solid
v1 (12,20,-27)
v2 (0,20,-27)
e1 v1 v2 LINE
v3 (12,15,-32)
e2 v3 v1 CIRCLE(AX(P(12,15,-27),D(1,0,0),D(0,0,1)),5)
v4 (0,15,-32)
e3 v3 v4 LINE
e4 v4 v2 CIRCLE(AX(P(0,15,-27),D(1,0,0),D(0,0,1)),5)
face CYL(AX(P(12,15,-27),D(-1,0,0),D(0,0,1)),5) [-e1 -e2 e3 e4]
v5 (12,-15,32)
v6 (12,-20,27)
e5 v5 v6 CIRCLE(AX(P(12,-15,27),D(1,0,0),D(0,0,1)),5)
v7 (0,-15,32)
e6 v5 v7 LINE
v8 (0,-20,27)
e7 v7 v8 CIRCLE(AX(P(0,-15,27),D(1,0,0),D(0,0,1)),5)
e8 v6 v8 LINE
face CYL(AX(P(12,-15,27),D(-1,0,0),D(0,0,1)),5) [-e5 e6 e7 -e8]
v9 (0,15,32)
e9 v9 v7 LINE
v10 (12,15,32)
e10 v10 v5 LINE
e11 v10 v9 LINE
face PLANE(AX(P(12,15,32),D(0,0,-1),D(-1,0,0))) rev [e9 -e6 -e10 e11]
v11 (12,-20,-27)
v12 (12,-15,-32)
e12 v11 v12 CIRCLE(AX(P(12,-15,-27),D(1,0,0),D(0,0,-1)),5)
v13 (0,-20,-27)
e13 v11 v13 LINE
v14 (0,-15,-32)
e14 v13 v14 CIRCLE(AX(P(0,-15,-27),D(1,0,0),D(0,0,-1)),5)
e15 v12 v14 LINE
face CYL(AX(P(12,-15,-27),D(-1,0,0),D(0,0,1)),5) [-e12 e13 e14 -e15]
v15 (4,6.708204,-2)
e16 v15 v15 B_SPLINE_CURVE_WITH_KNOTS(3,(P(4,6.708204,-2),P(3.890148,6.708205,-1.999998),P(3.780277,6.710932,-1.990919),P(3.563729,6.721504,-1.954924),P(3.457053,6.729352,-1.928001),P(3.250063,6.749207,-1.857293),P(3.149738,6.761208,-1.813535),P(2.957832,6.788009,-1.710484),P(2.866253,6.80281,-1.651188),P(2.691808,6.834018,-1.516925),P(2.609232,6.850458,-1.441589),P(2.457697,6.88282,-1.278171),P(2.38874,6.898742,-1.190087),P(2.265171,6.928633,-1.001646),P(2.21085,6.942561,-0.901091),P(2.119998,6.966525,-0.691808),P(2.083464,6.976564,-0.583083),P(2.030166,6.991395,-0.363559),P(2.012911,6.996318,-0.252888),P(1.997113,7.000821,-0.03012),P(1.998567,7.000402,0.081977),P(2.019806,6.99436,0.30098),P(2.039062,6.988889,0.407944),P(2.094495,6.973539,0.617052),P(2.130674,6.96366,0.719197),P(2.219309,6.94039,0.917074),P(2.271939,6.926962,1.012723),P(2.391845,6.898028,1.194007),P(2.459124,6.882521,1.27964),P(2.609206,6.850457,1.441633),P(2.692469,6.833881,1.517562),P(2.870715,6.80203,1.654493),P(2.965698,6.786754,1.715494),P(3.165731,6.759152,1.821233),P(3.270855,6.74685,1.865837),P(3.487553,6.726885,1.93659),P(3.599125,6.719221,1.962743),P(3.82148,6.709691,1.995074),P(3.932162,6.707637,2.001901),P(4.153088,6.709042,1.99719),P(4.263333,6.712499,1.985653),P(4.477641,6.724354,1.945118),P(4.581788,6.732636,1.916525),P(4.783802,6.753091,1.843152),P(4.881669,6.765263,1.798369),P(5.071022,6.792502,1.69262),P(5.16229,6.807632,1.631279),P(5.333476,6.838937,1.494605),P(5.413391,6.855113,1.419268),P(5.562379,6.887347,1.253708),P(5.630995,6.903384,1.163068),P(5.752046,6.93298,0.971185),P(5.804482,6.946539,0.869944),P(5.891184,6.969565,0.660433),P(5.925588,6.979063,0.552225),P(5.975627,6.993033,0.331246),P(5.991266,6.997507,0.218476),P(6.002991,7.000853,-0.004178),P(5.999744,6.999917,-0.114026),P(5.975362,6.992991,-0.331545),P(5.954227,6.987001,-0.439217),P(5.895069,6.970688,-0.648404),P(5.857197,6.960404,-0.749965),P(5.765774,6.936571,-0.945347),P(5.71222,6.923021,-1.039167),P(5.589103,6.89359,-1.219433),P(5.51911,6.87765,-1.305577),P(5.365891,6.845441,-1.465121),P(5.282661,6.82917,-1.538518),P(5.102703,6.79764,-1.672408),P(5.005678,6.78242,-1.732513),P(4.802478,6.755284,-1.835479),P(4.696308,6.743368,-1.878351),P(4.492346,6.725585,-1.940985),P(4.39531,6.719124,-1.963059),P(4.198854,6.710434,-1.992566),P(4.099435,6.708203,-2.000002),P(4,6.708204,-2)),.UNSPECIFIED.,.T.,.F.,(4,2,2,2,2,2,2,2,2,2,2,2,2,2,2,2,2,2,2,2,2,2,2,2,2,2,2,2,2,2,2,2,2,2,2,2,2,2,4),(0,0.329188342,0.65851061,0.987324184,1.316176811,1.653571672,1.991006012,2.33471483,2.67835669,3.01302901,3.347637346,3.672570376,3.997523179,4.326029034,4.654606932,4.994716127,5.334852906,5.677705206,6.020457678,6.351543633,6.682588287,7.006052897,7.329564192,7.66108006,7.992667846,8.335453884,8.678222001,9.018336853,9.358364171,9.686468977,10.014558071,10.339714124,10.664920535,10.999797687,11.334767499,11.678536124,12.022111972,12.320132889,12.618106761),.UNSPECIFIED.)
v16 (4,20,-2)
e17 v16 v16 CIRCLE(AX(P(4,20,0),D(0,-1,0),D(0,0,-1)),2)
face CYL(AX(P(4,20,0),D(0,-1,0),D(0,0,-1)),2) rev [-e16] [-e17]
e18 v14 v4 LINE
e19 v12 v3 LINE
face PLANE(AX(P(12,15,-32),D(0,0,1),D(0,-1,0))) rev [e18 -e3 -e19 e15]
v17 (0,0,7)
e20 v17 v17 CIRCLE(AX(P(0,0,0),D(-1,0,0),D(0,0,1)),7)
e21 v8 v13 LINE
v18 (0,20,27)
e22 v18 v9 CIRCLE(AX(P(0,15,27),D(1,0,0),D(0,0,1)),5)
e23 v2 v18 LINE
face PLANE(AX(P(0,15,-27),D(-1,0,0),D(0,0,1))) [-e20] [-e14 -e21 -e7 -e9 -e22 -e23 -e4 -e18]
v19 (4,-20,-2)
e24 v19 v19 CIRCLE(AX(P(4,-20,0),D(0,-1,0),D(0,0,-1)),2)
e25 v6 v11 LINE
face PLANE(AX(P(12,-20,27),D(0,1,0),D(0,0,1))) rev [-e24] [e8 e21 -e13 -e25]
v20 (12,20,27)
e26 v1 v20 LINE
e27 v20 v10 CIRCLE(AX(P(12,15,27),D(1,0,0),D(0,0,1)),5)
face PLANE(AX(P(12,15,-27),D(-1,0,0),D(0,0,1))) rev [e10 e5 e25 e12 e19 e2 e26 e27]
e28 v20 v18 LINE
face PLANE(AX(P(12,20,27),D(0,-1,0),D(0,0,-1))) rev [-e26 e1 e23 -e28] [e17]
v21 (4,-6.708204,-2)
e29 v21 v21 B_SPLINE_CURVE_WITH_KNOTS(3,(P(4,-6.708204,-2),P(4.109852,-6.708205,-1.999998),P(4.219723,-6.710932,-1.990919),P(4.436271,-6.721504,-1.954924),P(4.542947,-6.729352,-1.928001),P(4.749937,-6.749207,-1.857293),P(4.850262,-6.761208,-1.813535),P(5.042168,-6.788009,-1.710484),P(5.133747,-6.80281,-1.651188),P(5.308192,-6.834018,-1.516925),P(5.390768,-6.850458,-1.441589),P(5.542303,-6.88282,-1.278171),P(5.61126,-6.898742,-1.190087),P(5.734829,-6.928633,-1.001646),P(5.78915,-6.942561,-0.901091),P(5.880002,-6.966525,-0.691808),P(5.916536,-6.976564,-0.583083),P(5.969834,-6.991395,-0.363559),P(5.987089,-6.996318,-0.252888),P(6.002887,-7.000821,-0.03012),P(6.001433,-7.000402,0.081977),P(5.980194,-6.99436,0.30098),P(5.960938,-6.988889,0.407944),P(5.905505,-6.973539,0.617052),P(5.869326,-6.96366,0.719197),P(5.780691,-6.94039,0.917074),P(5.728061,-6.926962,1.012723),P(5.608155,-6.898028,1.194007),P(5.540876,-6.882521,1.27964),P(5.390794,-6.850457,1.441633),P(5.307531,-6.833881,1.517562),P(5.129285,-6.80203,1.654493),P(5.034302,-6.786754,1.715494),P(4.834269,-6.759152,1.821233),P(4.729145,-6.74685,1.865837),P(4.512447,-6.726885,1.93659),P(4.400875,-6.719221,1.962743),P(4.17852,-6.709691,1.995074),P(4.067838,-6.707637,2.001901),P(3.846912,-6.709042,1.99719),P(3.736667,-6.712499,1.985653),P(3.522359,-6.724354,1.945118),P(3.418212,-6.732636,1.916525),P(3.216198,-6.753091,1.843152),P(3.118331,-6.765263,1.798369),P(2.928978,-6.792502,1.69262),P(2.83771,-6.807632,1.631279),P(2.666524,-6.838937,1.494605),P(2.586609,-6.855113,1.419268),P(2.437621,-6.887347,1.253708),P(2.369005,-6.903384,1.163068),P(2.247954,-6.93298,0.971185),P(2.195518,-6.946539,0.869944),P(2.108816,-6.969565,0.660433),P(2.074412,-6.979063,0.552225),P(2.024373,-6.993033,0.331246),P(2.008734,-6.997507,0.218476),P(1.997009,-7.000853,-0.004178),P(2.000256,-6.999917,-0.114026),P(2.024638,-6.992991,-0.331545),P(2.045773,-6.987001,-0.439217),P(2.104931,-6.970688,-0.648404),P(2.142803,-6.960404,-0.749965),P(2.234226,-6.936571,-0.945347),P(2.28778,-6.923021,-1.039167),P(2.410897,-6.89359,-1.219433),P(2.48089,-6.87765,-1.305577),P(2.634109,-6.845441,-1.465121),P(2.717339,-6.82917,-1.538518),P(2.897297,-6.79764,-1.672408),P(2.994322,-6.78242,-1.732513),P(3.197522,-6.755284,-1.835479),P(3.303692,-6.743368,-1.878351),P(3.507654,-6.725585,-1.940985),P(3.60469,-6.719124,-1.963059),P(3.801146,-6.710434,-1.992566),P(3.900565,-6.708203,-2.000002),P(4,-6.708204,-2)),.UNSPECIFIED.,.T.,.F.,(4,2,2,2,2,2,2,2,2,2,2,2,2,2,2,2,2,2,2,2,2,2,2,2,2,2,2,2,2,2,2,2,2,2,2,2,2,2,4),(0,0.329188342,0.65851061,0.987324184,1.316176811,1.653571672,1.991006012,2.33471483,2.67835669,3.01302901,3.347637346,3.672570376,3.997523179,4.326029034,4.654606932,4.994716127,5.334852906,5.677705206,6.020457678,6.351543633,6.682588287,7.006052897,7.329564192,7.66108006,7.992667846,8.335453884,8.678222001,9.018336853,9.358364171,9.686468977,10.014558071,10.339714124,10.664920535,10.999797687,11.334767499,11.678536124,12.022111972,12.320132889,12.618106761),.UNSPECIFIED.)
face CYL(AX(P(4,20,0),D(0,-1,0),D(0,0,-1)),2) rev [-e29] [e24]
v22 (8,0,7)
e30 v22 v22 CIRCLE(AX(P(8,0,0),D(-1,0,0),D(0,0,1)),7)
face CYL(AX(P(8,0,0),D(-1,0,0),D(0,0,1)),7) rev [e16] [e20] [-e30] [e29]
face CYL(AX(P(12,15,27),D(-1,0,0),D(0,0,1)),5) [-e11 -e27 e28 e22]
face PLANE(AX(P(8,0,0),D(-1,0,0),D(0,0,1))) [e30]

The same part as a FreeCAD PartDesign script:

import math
import FreeCAD as App
import Part
import Sketcher

doc = App.newDocument("Part")
body = doc.addObject("PartDesign::Body", "Body")

# Sketch on YZ plane
sketch1 = body.newObject("Sketcher::SketchObject", "Sketch")
sketch1.AttachmentSupport = (doc.getObject("YZ_Plane"), [""])
sketch1.MapMode = "FlatFace"
sketch1.addGeometry([
    Part.LineSegment(App.Vector(20, -27, 0), App.Vector(20, 27, 0)),  # 0
    Part.ArcOfCircle(Part.Circle(App.Vector(15, 27, 0), App.Vector(0, 0, 1), 5), math.radians(0), math.radians(90)),  # 1
    Part.LineSegment(App.Vector(15, 32, 0), App.Vector(-15, 32, 0)),  # 2
    Part.ArcOfCircle(Part.Circle(App.Vector(-15, 27, 0), App.Vector(0, 0, 1), 5), math.radians(90), math.radians(180)),  # 3
    Part.LineSegment(App.Vector(-20, 27, 0), App.Vector(-20, -27, 0)),  # 4
    Part.ArcOfCircle(Part.Circle(App.Vector(-15, -27, 0), App.Vector(0, 0, 1), 5), math.radians(180), math.radians(270)),  # 5
    Part.LineSegment(App.Vector(-15, -32, 0), App.Vector(15, -32, 0)),  # 6
    Part.ArcOfCircle(Part.Circle(App.Vector(15, -27, 0), App.Vector(0, 0, 1), 5), math.radians(-90), math.radians(0)),  # 7
], False)
sketch1.addConstraint([
    Sketcher.Constraint("Tangent", 0, 2, 1, 1),
    Sketcher.Constraint("Tangent", 1, 2, 2, 1),
    Sketcher.Constraint("Tangent", 2, 2, 3, 1),
    Sketcher.Constraint("Tangent", 3, 2, 4, 1),
    Sketcher.Constraint("Tangent", 4, 2, 5, 1),
    Sketcher.Constraint("Tangent", 5, 2, 6, 1),
    Sketcher.Constraint("Tangent", 6, 2, 7, 1),
    Sketcher.Constraint("Tangent", 7, 2, 0, 1),
    Sketcher.Constraint("Vertical", 0),
    Sketcher.Constraint("Horizontal", 2),
    Sketcher.Constraint("Vertical", 4),
    Sketcher.Constraint("Horizontal", 6),
    Sketcher.Constraint("Equal", 1, 3),
    Sketcher.Constraint("Equal", 3, 5),
    Sketcher.Constraint("Equal", 5, 7),
    Sketcher.Constraint("Symmetric", 1, 3, 5, 3, -1, 1),
    Sketcher.Constraint("Radius", 1, 5.0),
    Sketcher.Constraint("DistanceX", 2, 2, 2, 1, 30.0),
    Sketcher.Constraint("DistanceY", 0, 1, 0, 2, 54.0),
])
pad1 = body.newObject("PartDesign::Pad", "Pad")
pad1.Profile = sketch1
pad1.Length = 12

# Sketch on YZ plane
sketch2 = body.newObject("Sketcher::SketchObject", "Sketch001")
sketch2.AttachmentSupport = (doc.getObject("YZ_Plane"), [""])
sketch2.MapMode = "FlatFace"
sketch2.addGeometry(Part.Circle(App.Vector(0, 0, 0), App.Vector(0, 0, 1), 7), False)
sketch2.addConstraint([
    Sketcher.Constraint("Coincident", 0, 3, -1, 1),
    Sketcher.Constraint("Diameter", 0, 14.0),
])
pocket1 = body.newObject("PartDesign::Pocket", "Pocket")
pocket1.Profile = sketch2
pocket1.Length = 8
pocket1.Reversed = True

# Sketch on XZ plane
sketch3 = body.newObject("Sketcher::SketchObject", "Sketch002")
sketch3.AttachmentSupport = (doc.getObject("XZ_Plane"), [""])
sketch3.MapMode = "FlatFace"
sketch3.AttachmentOffset = App.Placement(App.Vector(0, 0, 20), App.Rotation())
sketch3.addGeometry(Part.Circle(App.Vector(4, 0, 0), App.Vector(0, 0, 1), 2), False)
sketch3.addConstraint([
    Sketcher.Constraint("PointOnObject", 0, 3, -1),
    Sketcher.Constraint("Diameter", 0, 4.0),
    Sketcher.Constraint("DistanceX", -1, 1, 0, 3, 4.0),
])
pocket2 = body.newObject("PartDesign::Pocket", "Pocket001")
pocket2.Profile = sketch3
pocket2.Type = "ThroughAll"

doc.recompute()
